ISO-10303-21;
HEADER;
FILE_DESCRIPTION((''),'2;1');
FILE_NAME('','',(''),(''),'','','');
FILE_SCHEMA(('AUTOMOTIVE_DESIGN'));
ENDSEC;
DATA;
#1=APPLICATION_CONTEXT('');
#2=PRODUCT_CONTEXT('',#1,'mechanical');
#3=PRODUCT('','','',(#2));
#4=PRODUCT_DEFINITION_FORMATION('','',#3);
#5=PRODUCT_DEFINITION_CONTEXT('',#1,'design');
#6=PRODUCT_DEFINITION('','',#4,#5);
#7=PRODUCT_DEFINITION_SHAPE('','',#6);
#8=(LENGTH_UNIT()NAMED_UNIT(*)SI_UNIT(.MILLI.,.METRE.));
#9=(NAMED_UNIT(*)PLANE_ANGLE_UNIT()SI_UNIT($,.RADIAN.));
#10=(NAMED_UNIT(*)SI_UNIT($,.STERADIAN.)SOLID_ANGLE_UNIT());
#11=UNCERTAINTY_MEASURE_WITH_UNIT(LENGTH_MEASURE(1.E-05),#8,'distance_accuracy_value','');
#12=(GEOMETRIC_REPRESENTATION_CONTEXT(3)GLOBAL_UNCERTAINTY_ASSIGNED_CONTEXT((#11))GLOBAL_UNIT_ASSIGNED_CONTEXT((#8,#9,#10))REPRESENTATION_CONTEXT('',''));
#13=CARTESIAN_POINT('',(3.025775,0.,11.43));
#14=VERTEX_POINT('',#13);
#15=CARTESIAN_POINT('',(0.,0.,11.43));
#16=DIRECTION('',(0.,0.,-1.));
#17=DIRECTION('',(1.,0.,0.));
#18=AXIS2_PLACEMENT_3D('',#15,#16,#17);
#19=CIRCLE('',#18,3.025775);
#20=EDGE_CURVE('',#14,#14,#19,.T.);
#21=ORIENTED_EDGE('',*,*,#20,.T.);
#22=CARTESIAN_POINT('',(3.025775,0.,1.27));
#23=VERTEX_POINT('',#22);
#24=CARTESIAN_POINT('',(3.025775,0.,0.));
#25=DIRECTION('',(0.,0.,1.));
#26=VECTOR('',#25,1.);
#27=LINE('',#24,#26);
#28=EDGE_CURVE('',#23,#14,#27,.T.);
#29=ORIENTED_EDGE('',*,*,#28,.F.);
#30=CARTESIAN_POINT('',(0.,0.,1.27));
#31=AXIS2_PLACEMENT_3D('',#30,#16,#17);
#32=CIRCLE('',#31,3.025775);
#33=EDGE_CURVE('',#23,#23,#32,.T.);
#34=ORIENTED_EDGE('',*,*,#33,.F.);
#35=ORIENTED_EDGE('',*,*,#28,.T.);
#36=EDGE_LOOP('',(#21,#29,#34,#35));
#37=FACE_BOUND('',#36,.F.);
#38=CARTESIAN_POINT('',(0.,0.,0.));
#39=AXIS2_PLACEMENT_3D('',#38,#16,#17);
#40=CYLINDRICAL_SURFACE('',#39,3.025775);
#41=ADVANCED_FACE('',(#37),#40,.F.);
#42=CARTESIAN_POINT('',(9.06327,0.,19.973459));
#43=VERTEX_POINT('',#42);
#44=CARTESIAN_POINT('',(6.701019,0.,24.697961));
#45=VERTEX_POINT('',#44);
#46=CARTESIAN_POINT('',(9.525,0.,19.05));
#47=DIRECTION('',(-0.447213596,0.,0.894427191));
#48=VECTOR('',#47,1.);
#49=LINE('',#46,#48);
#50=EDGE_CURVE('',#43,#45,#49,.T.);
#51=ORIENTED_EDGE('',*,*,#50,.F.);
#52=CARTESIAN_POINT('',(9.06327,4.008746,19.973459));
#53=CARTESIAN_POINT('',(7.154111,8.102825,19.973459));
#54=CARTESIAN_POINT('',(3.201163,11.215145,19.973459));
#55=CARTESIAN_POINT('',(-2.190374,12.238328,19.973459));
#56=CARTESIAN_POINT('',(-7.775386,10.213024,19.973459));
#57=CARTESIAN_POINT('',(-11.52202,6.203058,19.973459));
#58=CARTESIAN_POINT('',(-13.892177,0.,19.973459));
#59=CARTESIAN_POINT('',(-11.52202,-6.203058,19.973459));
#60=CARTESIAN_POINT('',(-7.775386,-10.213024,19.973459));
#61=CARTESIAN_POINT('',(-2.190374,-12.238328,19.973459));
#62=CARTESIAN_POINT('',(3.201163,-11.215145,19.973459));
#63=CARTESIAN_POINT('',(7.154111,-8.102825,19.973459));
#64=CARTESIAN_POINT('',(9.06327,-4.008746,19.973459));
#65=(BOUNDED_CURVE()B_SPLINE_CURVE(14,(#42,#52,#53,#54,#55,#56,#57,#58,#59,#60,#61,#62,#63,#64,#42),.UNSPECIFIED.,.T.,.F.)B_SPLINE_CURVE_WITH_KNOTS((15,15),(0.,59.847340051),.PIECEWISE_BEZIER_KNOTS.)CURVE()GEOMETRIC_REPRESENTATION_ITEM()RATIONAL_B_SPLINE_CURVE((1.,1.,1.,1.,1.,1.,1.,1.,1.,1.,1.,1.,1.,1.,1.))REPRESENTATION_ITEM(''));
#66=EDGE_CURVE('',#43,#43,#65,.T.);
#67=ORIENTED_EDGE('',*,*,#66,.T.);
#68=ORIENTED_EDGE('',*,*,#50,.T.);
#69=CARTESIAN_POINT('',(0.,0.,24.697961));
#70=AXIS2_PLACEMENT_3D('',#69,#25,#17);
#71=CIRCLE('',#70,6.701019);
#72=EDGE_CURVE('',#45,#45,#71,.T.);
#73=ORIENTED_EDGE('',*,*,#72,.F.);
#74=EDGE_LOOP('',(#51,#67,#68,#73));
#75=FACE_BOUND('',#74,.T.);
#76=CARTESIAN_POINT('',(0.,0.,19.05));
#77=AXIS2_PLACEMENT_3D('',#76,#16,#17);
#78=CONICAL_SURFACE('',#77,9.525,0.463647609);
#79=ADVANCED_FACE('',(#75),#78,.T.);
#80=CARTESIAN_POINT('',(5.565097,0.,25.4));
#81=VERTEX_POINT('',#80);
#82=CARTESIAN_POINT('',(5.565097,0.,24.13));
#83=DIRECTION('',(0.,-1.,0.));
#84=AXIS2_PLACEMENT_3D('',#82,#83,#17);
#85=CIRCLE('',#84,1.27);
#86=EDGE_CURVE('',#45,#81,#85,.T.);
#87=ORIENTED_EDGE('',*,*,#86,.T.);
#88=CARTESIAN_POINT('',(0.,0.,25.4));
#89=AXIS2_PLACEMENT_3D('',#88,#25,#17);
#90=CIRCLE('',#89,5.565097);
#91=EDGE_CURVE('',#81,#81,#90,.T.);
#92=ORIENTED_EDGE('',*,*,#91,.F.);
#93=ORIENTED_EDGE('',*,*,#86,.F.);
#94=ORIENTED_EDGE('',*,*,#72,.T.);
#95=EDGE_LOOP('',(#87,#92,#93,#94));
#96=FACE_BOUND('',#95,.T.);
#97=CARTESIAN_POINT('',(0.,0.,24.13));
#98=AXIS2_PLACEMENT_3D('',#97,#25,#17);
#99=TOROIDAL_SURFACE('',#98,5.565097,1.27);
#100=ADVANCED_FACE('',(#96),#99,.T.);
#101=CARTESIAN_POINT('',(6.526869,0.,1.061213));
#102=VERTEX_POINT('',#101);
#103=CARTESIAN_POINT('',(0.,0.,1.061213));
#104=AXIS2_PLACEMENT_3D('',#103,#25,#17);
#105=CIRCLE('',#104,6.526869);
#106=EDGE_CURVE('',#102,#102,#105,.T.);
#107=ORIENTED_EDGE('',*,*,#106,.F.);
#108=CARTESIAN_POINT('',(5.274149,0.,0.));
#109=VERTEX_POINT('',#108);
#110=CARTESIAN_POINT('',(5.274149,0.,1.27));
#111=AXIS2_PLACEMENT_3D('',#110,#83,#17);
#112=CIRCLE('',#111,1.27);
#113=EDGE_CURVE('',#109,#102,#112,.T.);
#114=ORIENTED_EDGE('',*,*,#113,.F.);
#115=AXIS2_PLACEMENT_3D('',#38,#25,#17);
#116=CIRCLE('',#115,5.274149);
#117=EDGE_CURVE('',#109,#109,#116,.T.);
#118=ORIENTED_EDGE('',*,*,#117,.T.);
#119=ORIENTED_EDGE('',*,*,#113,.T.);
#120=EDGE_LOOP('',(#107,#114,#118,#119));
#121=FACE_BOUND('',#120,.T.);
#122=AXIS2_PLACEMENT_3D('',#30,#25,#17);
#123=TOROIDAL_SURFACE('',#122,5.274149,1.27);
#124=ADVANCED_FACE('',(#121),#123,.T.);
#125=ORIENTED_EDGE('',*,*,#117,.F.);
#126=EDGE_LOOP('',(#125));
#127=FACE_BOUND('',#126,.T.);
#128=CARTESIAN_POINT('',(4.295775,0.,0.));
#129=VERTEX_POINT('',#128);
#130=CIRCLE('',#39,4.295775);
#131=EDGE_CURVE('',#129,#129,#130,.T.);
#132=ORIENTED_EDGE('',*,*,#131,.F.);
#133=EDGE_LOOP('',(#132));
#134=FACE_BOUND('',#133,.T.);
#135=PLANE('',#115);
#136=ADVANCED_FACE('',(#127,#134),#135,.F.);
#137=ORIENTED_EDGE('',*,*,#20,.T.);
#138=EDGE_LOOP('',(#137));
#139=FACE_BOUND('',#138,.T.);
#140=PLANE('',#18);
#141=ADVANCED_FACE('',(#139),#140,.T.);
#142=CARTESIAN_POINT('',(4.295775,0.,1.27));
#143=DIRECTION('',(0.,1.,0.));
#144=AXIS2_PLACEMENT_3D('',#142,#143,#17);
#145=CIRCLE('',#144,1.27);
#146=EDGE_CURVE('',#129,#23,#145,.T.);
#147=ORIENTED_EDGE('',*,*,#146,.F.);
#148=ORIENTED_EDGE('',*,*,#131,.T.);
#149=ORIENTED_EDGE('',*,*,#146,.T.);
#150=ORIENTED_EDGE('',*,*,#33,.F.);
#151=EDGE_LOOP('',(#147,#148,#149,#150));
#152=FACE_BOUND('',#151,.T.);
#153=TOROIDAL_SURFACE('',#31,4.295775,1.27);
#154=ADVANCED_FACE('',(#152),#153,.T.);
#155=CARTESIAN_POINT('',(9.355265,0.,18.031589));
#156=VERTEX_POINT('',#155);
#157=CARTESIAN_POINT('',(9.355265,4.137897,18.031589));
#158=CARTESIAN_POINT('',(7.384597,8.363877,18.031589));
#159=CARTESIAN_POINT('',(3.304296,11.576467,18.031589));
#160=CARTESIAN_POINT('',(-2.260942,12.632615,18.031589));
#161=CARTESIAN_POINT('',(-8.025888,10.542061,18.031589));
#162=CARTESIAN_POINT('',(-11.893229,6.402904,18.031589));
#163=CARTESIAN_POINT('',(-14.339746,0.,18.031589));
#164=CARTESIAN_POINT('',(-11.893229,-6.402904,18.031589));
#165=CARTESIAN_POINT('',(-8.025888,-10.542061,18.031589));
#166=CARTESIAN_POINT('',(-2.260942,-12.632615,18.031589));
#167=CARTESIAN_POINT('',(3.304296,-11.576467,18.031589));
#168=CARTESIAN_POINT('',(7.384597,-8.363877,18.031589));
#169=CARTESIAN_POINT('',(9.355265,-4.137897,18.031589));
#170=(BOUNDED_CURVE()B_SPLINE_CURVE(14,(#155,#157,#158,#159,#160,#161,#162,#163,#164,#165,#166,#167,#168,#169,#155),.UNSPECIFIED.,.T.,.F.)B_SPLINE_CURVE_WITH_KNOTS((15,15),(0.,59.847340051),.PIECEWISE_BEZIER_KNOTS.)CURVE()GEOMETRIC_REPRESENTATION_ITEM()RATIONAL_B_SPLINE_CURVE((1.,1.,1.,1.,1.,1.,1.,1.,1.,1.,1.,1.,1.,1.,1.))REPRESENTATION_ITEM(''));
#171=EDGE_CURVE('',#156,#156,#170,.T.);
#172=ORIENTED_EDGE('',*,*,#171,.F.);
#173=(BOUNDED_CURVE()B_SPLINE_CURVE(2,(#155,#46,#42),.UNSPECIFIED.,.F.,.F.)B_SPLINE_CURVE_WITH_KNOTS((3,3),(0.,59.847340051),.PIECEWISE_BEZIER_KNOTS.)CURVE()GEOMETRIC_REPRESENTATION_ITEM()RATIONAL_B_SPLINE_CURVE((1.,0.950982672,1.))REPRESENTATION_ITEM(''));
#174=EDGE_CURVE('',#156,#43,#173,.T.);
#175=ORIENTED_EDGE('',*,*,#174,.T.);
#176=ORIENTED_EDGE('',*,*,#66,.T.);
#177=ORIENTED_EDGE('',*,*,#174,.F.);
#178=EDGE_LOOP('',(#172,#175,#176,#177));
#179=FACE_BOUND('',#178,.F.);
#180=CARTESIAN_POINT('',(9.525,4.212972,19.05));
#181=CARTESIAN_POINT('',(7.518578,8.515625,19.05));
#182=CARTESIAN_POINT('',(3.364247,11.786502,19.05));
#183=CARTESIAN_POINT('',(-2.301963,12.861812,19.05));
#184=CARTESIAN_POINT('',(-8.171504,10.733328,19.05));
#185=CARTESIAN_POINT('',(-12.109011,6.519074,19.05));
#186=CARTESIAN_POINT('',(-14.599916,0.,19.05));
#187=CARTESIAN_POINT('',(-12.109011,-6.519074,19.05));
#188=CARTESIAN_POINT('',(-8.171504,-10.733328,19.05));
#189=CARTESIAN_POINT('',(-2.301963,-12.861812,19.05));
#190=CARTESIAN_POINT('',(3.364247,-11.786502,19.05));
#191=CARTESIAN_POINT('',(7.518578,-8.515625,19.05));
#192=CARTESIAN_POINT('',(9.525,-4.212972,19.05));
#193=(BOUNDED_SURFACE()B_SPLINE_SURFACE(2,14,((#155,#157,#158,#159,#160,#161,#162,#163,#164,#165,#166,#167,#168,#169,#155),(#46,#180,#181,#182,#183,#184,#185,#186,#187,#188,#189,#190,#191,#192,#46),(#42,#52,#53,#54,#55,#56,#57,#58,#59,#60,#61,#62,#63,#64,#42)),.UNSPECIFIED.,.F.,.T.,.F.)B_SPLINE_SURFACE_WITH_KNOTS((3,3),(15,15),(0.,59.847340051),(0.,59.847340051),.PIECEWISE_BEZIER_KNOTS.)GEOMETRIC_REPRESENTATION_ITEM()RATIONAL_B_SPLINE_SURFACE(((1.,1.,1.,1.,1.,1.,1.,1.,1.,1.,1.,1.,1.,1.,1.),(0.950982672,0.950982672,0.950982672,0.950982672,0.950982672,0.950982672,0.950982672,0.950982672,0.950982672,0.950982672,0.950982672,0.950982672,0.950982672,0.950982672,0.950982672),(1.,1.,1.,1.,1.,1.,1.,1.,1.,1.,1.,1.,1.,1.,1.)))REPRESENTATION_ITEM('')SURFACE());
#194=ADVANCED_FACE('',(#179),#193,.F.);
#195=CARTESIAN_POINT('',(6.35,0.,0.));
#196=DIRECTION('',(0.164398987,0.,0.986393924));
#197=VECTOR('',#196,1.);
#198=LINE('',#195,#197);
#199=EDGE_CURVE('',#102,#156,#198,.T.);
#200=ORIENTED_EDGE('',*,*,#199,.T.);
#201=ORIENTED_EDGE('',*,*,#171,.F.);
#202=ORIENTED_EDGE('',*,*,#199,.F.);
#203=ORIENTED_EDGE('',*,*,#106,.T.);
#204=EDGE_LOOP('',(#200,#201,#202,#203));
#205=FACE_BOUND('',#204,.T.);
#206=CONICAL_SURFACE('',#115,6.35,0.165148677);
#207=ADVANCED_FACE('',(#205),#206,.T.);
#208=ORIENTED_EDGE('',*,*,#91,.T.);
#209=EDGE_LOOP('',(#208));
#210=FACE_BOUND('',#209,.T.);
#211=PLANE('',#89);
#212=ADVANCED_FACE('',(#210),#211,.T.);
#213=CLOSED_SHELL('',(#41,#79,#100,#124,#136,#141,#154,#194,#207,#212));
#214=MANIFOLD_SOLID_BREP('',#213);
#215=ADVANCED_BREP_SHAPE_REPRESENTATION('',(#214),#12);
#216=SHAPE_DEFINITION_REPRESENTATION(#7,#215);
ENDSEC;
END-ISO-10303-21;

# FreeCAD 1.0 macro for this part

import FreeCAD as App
import Part
import Sketcher
Q = App.Units.Quantity


def edges_at(feature, points):
    """Names of the edges that pass closest to the given points."""
    edges = feature.Shape.Edges
    near = lambda p: min(range(len(edges)), key=lambda i: edges[i].distToShape(Part.Vertex(*p))[0])
    return sorted({f"Edge{near(p) + 1}" for p in points})

doc = App.newDocument("Part")
params = doc.addObject("Spreadsheet::Sheet", "Params")
for row, (alias, value) in enumerate([
    ("sketch1_height", "1 in"),
    ("sketch1_width", "0.25 in"),
    ("revolution_angle", "360 deg"),
    ("pocket1_length", "0.45 in"),
    ("fillet_radius", "0.05 in"),
    ("fillet2_radius", "0.125 in"),
], start=1):
    params.set(f"A{row}", alias)
    params.set(f"B{row}", "=" + value)
    params.setAlias(f"B{row}", alias)

body = doc.addObject("PartDesign::Body", "Body")

sketch1 = doc.addObject("Sketcher::SketchObject", "Sketch")
body.addObject(sketch1)
sketch1.AttachmentSupport = (doc.XZ_Plane, [""])
sketch1.MapMode = "FlatFace"
sketch1.addGeometry(Part.LineSegment(App.Vector(0, 25.4, 0), App.Vector(0, 0, 0)), False)
sketch1.addGeometry(Part.LineSegment(App.Vector(0, 0, 0), App.Vector(6.35, 0, 0)), False)
sketch1.addGeometry(Part.LineSegment(App.Vector(6.35, 0, 0), App.Vector(9.525, 19.05, 0)), False)
sketch1.addGeometry(Part.LineSegment(App.Vector(9.525, 19.05, 0), App.Vector(6.35, 25.4, 0)), False)
sketch1.addGeometry(Part.LineSegment(App.Vector(6.35, 25.4, 0), App.Vector(0, 25.4, 0)), False)
sketch1.addConstraint(Sketcher.Constraint("Coincident", 0, 2, 1, 1))
sketch1.addConstraint(Sketcher.Constraint("Coincident", 1, 2, 2, 1))
sketch1.addConstraint(Sketcher.Constraint("Coincident", 2, 2, 3, 1))
sketch1.addConstraint(Sketcher.Constraint("Coincident", 3, 2, 4, 1))
sketch1.addConstraint(Sketcher.Constraint("Coincident", 4, 2, 0, 1))
sketch1.addConstraint(Sketcher.Constraint("Vertical", 0))
sketch1.addConstraint(Sketcher.Constraint("Horizontal", 1))
sketch1.addConstraint(Sketcher.Constraint("Horizontal", 4))
sketch1.addConstraint(Sketcher.Constraint("Coincident", 0, 2, -1, 1))
sketch1.addConstraint(Sketcher.Constraint("Vertical", 1, 2, 3, 2))
sketch1.addConstraint(Sketcher.Constraint("DistanceY", 0, 2, 0, 1, Q("1 in")))
sketch1.addConstraint(Sketcher.Constraint("DistanceX", 1, 1, 1, 2, Q("0.25 in")))
sketch1.addConstraint(Sketcher.Constraint("DistanceY", -1, 1, 2, 2, Q("0.75 in")))
sketch1.addConstraint(Sketcher.Constraint("DistanceX", -1, 1, 2, 2, Q("0.375 in")))
sketch1.setExpression("Constraints[10]", "Params.sketch1_height")
sketch1.setExpression("Constraints[11]", "Params.sketch1_width")
revolution = doc.addObject("PartDesign::Revolution", "Revolution")
body.addObject(revolution)
revolution.Profile = sketch1
revolution.ReferenceAxis = (sketch1, ["V_Axis"])
revolution.setExpression("Angle", "Params.revolution_angle")

sketch2 = doc.addObject("Sketcher::SketchObject", "Sketch001")
body.addObject(sketch2)
sketch2.AttachmentSupport = (doc.XY_Plane, [""])
sketch2.MapMode = "FlatFace"
sketch2.addGeometry(Part.Circle(App.Vector(0, 0, 0), App.Vector(0, 0, 1), 3.025775), False)
sketch2.addConstraint(Sketcher.Constraint("Coincident", 0, 3, -1, 1))
sketch2.addConstraint(Sketcher.Constraint("Diameter", 0, 6.05155))
pocket1 = doc.addObject("PartDesign::Pocket", "Pocket")
body.addObject(pocket1)
pocket1.Profile = sketch2
pocket1.setExpression("Length", "Params.pocket1_length")
pocket1.Reversed = True
doc.recompute()

fillet = doc.addObject("PartDesign::Fillet", "Fillet")
body.addObject(fillet)
fillet.Base = (pocket1, edges_at(pocket1, [(-3.026, 0, 0), (-6.35, 0, 25.4), (-6.35, 0, 0)]))
fillet.setExpression("Radius", "Params.fillet_radius")
doc.recompute()

fillet2 = doc.addObject("PartDesign::Fillet", "Fillet001")
body.addObject(fillet2)
fillet2.Base = (fillet, edges_at(fillet, [(-9.525, 0, 19.05)]))
fillet2.setExpression("Radius", "Params.fillet2_radius")

doc.recompute()
